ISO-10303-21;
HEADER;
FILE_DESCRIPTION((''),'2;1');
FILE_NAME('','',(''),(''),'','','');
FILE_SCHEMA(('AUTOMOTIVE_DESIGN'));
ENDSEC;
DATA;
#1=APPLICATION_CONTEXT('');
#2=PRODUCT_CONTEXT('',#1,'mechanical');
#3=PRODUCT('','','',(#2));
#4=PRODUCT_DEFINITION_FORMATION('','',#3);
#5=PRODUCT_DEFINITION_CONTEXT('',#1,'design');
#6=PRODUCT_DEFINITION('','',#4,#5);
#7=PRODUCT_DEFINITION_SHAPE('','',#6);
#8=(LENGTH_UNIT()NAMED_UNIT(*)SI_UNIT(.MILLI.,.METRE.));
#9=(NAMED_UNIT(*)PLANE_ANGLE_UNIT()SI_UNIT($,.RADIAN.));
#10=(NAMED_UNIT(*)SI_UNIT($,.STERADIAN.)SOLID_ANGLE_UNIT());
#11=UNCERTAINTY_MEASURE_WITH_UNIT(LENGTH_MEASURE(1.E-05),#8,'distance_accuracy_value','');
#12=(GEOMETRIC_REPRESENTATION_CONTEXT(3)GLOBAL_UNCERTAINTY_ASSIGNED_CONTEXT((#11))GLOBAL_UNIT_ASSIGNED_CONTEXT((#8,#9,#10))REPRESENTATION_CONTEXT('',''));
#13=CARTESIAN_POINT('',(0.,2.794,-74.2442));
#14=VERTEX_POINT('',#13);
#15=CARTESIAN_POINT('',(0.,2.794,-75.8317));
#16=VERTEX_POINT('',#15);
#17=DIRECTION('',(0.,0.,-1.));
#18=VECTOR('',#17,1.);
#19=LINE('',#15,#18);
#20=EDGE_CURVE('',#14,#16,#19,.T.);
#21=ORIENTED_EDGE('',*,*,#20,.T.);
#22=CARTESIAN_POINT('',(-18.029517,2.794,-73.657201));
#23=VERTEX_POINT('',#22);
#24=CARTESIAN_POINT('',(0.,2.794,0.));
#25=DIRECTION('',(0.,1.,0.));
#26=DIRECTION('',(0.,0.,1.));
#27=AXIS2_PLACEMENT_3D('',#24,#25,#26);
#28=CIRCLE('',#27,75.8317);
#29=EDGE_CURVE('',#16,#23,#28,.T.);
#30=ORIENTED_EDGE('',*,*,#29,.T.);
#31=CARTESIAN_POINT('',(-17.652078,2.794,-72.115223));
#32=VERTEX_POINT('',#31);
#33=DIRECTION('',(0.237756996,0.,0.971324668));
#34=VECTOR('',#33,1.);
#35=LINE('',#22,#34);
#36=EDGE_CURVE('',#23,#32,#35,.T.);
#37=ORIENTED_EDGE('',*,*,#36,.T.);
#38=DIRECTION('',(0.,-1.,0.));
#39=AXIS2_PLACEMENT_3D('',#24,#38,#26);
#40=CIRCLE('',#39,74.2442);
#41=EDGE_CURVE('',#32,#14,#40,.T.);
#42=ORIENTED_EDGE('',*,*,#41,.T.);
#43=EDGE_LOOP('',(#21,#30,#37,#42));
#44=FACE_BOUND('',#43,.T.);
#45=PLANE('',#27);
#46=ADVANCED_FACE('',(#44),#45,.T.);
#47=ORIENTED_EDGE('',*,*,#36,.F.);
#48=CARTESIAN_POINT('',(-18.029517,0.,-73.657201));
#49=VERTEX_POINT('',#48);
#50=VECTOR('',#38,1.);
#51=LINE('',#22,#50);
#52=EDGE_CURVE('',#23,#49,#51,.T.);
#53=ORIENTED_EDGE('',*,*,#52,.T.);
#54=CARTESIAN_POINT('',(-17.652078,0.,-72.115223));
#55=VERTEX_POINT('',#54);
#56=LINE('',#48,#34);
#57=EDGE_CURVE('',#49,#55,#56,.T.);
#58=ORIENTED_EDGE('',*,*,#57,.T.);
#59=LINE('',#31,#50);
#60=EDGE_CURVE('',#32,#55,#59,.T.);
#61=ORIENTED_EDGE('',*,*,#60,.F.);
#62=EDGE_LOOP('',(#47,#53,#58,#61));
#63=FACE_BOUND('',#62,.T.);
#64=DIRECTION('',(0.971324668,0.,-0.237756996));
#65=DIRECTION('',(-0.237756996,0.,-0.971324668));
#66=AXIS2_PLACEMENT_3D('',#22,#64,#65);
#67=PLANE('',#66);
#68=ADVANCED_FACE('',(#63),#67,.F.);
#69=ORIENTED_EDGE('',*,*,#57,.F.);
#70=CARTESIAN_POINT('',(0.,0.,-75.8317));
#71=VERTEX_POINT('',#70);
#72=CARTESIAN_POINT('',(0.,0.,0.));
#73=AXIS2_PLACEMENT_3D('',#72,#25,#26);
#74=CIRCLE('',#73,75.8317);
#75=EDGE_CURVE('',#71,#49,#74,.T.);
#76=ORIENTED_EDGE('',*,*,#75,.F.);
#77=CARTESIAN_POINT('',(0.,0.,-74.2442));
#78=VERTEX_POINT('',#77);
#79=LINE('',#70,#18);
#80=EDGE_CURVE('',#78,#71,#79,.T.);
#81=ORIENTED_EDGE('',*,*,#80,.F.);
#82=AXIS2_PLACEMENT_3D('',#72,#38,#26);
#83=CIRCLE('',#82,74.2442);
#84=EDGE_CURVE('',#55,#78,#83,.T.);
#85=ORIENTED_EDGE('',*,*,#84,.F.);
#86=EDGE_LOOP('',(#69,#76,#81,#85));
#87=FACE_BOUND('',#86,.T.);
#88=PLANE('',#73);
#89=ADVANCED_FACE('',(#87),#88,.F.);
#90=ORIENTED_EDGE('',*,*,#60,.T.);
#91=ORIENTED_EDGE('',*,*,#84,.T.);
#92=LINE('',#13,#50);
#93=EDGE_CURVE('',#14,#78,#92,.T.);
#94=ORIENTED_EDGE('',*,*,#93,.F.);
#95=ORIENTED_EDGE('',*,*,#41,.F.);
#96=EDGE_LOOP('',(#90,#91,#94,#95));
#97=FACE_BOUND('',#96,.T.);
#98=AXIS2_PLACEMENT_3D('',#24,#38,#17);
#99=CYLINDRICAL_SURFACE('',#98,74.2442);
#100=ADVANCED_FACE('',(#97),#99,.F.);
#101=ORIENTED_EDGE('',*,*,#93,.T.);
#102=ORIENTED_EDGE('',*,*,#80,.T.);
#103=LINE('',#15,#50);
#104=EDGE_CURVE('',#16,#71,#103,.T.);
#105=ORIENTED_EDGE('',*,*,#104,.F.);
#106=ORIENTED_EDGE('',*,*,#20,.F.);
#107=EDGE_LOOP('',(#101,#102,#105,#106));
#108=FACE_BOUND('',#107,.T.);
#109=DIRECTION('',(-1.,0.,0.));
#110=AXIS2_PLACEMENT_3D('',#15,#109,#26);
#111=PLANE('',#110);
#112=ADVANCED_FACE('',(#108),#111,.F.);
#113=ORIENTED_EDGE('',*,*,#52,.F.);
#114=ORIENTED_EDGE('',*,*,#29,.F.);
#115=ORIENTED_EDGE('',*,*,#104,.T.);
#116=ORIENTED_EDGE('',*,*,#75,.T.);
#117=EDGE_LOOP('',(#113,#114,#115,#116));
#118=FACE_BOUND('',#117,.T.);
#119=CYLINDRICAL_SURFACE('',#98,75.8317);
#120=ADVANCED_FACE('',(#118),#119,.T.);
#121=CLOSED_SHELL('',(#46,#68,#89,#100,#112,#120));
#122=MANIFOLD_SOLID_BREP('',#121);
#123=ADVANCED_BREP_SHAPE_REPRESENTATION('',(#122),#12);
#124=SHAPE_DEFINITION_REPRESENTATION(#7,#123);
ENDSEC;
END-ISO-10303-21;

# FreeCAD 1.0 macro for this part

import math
import FreeCAD as App
import Part
import Sketcher

V = App.Vector
Q = App.Units.Quantity

doc = App.newDocument("Part")
body = doc.addObject("PartDesign::Body", "Body")

# Sketch on XZ plane
sketch1 = body.newObject("Sketcher::SketchObject", "Sketch")
sketch1.AttachmentSupport = (doc.getObject("XZ_Plane"), [""])
sketch1.MapMode = "FlatFace"
sketch1.addGeometry(Part.LineSegment(V(-18, -73.7, 0), V(-17.7, -72.1, 0)), False)
sketch1.addGeometry(Part.ArcOfCircle(Part.Circle(V(0, 0, 0), V(0, 0, 1), 74.2), math.radians(-103.75), math.radians(-90)), False)
sketch1.addGeometry(Part.LineSegment(V(0, -74.2, 0), V(0, -75.8, 0)), False)
sketch1.addGeometry(Part.ArcOfCircle(Part.Circle(V(0, 0, 0), V(0, 0, 1), 75.8), math.radians(-103.75), math.radians(-90)), False)
sketch1.addConstraint(Sketcher.Constraint("Coincident", 0, 2, 1, 1))
sketch1.addConstraint(Sketcher.Constraint("Coincident", 1, 2, 2, 1))
sketch1.addConstraint(Sketcher.Constraint("Coincident", 2, 2, 3, 2))
sketch1.addConstraint(Sketcher.Constraint("Coincident", 3, 1, 0, 1))
sketch1.addConstraint(Sketcher.Constraint("Vertical", 2))
sketch1.addConstraint(Sketcher.Constraint("Coincident", 1, 3, -1, 1))
sketch1.addConstraint(Sketcher.Constraint("Coincident", 3, 3, -1, 1))
sketch1.addConstraint(Sketcher.Constraint("PointOnObject", 1, 2, -2))
sketch1.addConstraint(Sketcher.Constraint("Radius", 1, Q("2.923 in")))
sketch1.addConstraint(Sketcher.Constraint("Radius", 3, Q("2.9855 in")))
sketch1.addConstraint(Sketcher.Constraint("DistanceY", 3, 1, -1, 1, Q("73.657201 mm")))
sketch1.addConstraint(Sketcher.Constraint("DistanceX", 3, 1, 0, 2, Q("0.377439 mm")))
pad1 = body.newObject("PartDesign::Pad", "Pad")
pad1.Profile = sketch1
pad1.Length = Q("0.11 in")
pad1.Reversed = True

doc.recompute()
